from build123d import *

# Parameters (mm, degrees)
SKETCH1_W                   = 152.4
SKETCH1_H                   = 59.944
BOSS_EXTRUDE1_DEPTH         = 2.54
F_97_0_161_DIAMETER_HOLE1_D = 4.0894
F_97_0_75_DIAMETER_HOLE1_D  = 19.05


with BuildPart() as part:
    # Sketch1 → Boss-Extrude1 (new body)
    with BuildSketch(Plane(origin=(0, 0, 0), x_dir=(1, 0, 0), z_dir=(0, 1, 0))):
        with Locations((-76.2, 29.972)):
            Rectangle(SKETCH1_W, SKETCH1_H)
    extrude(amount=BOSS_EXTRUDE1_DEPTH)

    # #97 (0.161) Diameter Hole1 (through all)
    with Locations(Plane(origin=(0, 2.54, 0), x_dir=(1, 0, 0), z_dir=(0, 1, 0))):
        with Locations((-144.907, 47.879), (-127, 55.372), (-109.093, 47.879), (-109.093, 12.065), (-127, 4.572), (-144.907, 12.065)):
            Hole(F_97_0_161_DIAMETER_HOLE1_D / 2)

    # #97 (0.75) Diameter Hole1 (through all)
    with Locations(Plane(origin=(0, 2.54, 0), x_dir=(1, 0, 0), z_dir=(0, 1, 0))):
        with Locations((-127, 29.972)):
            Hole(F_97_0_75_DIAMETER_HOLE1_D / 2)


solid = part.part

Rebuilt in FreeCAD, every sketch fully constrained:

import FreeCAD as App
import Part
import Sketcher
Q = App.Units.Quantity


def add_polygon(sketch, points):
    """Adds a closed chain of lines whose ends are joined by coincident constraints."""
    first, n = sketch.GeometryCount, len(points)
    for a, b in zip(points, points[1:] + points[:1]):
        sketch.addGeometry(Part.LineSegment(App.Vector(*a, 0), App.Vector(*b, 0)), False)
    for i in range(n):
        sketch.addConstraint(Sketcher.Constraint("Coincident", first + i, 2, first + (i + 1) % n, 1))

doc = App.newDocument("Part")
body = doc.addObject("PartDesign::Body", "Body")

# Sketch on XZ plane
sketch1 = body.newObject("Sketcher::SketchObject", "Sketch")
sketch1.AttachmentSupport = (doc.getObject("XZ_Plane"), [""])
sketch1.MapMode = "FlatFace"
add_polygon(sketch1, [(-152.4, -59.944), (-152.4, 0), (0, 0), (0, -59.944)])  # lines 0-3
sketch1.addConstraint(Sketcher.Constraint("Vertical", 0))
sketch1.addConstraint(Sketcher.Constraint("Horizontal", 1))
sketch1.addConstraint(Sketcher.Constraint("Vertical", 2))
sketch1.addConstraint(Sketcher.Constraint("Horizontal", 3))
sketch1.addConstraint(Sketcher.Constraint("Coincident", 1, 2, -1, 1))
sketch1.addConstraint(Sketcher.Constraint("DistanceX", 1, 1, 1, 2, Q("6 in")))
sketch1.addConstraint(Sketcher.Constraint("DistanceY", 0, 1, 0, 2, Q("2.36 in")))
pad1 = body.newObject("PartDesign::Pad", "Pad")
pad1.Profile = sketch1
pad1.Length = Q("0.1 in")
pad1.Reversed = True

# Sketch on XZ plane
sketch2 = body.newObject("Sketcher::SketchObject", "Sketch001")
sketch2.AttachmentSupport = (doc.getObject("XZ_Plane"), [""])
sketch2.MapMode = "FlatFace"
sketch2.AttachmentOffset = App.Placement(App.Vector(0, 0, -0.1 * 25.4), App.Rotation())
sketch2.addGeometry(Part.Circle(App.Vector(-144.907, -47.879, 0), App.Vector(0, 0, 1), 2.0447), False)
sketch2.addGeometry(Part.Circle(App.Vector(-127, -55.372, 0), App.Vector(0, 0, 1), 2.0447), False)
sketch2.addGeometry(Part.Circle(App.Vector(-109.093, -47.879, 0), App.Vector(0, 0, 1), 2.0447), False)
sketch2.addGeometry(Part.Circle(App.Vector(-109.093, -12.065, 0), App.Vector(0, 0, 1), 2.0447), False)
sketch2.addGeometry(Part.Circle(App.Vector(-127, -4.572, 0), App.Vector(0, 0, 1), 2.0447), False)
sketch2.addGeometry(Part.Circle(App.Vector(-144.907, -12.065, 0), App.Vector(0, 0, 1), 2.0447), False)
sketch2.addConstraint(Sketcher.Constraint("Equal", 0, 1))
sketch2.addConstraint(Sketcher.Constraint("Equal", 1, 2))
sketch2.addConstraint(Sketcher.Constraint("Equal", 2, 3))
sketch2.addConstraint(Sketcher.Constraint("Equal", 3, 4))
sketch2.addConstraint(Sketcher.Constraint("Equal", 4, 5))
sketch2.addConstraint(Sketcher.Constraint("Horizontal", 0, 3, 2, 3))
sketch2.addConstraint(Sketcher.Constraint("Horizontal", 3, 3, 5, 3))
sketch2.addConstraint(Sketcher.Constraint("Vertical", 2, 3, 3, 3))
sketch2.addConstraint(Sketcher.Constraint("Vertical", 1, 3, 4, 3))
sketch2.addConstraint(Sketcher.Constraint("Vertical", 0, 3, 5, 3))
sketch2.addConstraint(Sketcher.Constraint("Diameter", 0, Q("0.161 in")))
sketch2.addConstraint(Sketcher.Constraint("DistanceX", 1, 3, -1, 1, Q("5 in")))
sketch2.addConstraint(Sketcher.Constraint("DistanceY", 1, 3, 4, 3, Q("2 in")))
sketch2.addConstraint(Sketcher.Constraint("DistanceY", 1, 3, -1, 1, Q("2.18 in")))
sketch2.addConstraint(Sketcher.Constraint("DistanceX", 0, 3, 2, 3, Q("1.41 in")))
sketch2.addConstraint(Sketcher.Constraint("DistanceY", 2, 3, 3, 3, Q("1.41 in")))
sketch2.addConstraint(Sketcher.Constraint("DistanceX", 0, 3, -1, 1, Q("5.705 in")))
sketch2.addConstraint(Sketcher.Constraint("DistanceY", 0, 3, -1, 1, Q("1.885 in")))
doc.recompute()
hole = body.newObject("PartDesign::Hole", "Hole")
hole.Profile = sketch2
hole.ThreadType = "None"
hole.Diameter = Q("0.161 in")
hole.DepthType = "ThroughAll"
hole.Reversed = True

# Sketch on XZ plane
sketch3 = body.newObject("Sketcher::SketchObject", "Sketch002")
sketch3.AttachmentSupport = (doc.getObject("XZ_Plane"), [""])
sketch3.MapMode = "FlatFace"
sketch3.AttachmentOffset = App.Placement(App.Vector(0, 0, -0.1 * 25.4), App.Rotation())
sketch3.addGeometry(Part.Circle(App.Vector(-127, -29.972, 0), App.Vector(0, 0, 1), 9.525), False)
sketch3.addConstraint(Sketcher.Constraint("Diameter", 0, Q("0.75 in")))
sketch3.addConstraint(Sketcher.Constraint("DistanceX", 0, 3, -1, 1, Q("5 in")))
sketch3.addConstraint(Sketcher.Constraint("DistanceY", 0, 3, -1, 1, Q("1.18 in")))
doc.recompute()
hole2 = body.newObject("PartDesign::Hole", "Hole001")
hole2.Profile = sketch3
hole2.ThreadType = "None"
hole2.Diameter = Q("0.75 in")
hole2.DepthType = "ThroughAll"
hole2.Reversed = True

doc.recompute()
